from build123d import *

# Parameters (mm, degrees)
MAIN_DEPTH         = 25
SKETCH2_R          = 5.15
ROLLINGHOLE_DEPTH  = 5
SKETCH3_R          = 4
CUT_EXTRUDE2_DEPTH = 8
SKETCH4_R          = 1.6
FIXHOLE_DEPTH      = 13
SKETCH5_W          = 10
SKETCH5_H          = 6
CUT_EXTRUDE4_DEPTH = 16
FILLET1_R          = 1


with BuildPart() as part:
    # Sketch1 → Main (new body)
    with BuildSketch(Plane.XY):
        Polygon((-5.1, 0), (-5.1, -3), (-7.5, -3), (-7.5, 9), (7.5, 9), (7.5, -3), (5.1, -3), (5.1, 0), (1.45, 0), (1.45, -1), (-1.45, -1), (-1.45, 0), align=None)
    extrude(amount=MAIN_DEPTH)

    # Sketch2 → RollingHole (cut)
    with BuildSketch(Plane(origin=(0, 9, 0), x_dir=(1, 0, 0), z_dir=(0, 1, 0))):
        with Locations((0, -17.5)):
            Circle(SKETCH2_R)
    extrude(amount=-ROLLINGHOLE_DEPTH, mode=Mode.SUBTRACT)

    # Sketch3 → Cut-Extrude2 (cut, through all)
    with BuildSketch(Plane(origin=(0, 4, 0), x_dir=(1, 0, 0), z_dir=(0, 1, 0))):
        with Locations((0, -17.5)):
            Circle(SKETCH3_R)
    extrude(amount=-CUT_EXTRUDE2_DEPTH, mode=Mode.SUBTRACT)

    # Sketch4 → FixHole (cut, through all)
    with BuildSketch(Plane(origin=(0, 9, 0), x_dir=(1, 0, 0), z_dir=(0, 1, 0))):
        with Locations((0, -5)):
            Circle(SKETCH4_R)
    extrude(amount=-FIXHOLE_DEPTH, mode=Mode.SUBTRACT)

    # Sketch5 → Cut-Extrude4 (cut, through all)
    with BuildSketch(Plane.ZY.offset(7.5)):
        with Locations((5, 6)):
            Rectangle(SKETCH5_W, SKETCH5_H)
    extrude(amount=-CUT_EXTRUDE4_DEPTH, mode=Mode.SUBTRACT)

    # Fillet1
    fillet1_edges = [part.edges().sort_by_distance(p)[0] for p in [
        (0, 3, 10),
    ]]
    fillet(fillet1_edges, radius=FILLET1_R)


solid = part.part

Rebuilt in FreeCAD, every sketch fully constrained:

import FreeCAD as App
import Part
import Sketcher
Q = App.Units.Quantity


def edges_at(feature, points):
    """Names of the edges that pass closest to the given points."""
    edges = feature.Shape.Edges
    near = lambda p: min(range(len(edges)), key=lambda i: edges[i].distToShape(Part.Vertex(*p))[0])
    return sorted({f"Edge{near(p) + 1}" for p in points})

doc = App.newDocument("Part")
body = doc.addObject("PartDesign::Body", "Body")

sketch1 = body.newObject("Sketcher::SketchObject", "Sketch")
sketch1.AttachmentSupport = (doc.getObject("XY_Plane"), [""])
sketch1.MapMode = "FlatFace"
sketch1.addGeometry([
    Part.LineSegment(App.Vector(-5.1, -3, 0), App.Vector(-5.1, 0, 0)),
    Part.LineSegment(App.Vector(-5.1, 0, 0), App.Vector(-1.4, 0, 0)),
    Part.LineSegment(App.Vector(-1.4, 0, 0), App.Vector(-1.4, -1, 0)),
    Part.LineSegment(App.Vector(-1.4, -1, 0), App.Vector(1.4, -1, 0)),
    Part.LineSegment(App.Vector(1.4, -1, 0), App.Vector(1.4, 0, 0)),
    Part.LineSegment(App.Vector(1.4, 0, 0), App.Vector(5.1, 0, 0)),
    Part.LineSegment(App.Vector(5.1, 0, 0), App.Vector(5.1, -3, 0)),
    Part.LineSegment(App.Vector(5.1, -3, 0), App.Vector(7.5, -3, 0)),
    Part.LineSegment(App.Vector(7.5, -3, 0), App.Vector(7.5, 9, 0)),
    Part.LineSegment(App.Vector(7.5, 9, 0), App.Vector(-7.5, 9, 0)),
    Part.LineSegment(App.Vector(-7.5, 9, 0), App.Vector(-7.5, -3, 0)),
    Part.LineSegment(App.Vector(-7.5, -3, 0), App.Vector(-5.1, -3, 0)),
], False)
sketch1.addConstraint([
    Sketcher.Constraint("Coincident", 0, 2, 1, 1),
    Sketcher.Constraint("Coincident", 1, 2, 2, 1),
    Sketcher.Constraint("Coincident", 2, 2, 3, 1),
    Sketcher.Constraint("Coincident", 3, 2, 4, 1),
    Sketcher.Constraint("Coincident", 4, 2, 5, 1),
    Sketcher.Constraint("Coincident", 5, 2, 6, 1),
    Sketcher.Constraint("Coincident", 6, 2, 7, 1),
    Sketcher.Constraint("Coincident", 7, 2, 8, 1),
    Sketcher.Constraint("Coincident", 8, 2, 9, 1),
    Sketcher.Constraint("Coincident", 9, 2, 10, 1),
    Sketcher.Constraint("Coincident", 10, 2, 11, 1),
    Sketcher.Constraint("Coincident", 11, 2, 0, 1),
    Sketcher.Constraint("Vertical", 0),
    Sketcher.Constraint("Horizontal", 1),
    Sketcher.Constraint("Vertical", 2),
    Sketcher.Constraint("Horizontal", 3),
    Sketcher.Constraint("Vertical", 4),
    Sketcher.Constraint("Horizontal", 5),
    Sketcher.Constraint("Vertical", 6),
    Sketcher.Constraint("Horizontal", 7),
    Sketcher.Constraint("Vertical", 8),
    Sketcher.Constraint("Horizontal", 9),
    Sketcher.Constraint("Vertical", 10),
    Sketcher.Constraint("Horizontal", 11),
    Sketcher.Constraint("Symmetric", 1, 2, 4, 2, -1, 1),
    Sketcher.Constraint("Symmetric", 0, 2, 5, 2, -2),
    Sketcher.Constraint("Symmetric", 7, 2, 10, 2, -2),
    Sketcher.Constraint("DistanceX", 9, 2, 9, 1, Q("15 mm")),
    Sketcher.Constraint("DistanceY", 0, 1, 0, 2, Q("3 mm")),
    Sketcher.Constraint("DistanceY", 2, 2, 2, 1, Q("1 mm")),
    Sketcher.Constraint("DistanceY", 8, 1, 8, 2, Q("12 mm")),
    Sketcher.Constraint("DistanceX", 3, 1, 3, 2, Q("2.9 mm")),
    Sketcher.Constraint("DistanceX", 7, 1, 7, 2, Q("2.4 mm")),
])
pad1 = body.newObject("PartDesign::Pad", "Pad")
pad1.Profile = sketch1
pad1.Length = 25

sketch2 = body.newObject("Sketcher::SketchObject", "Sketch001")
sketch2.AttachmentSupport = (doc.getObject("XZ_Plane"), [""])
sketch2.MapMode = "FlatFace"
sketch2.AttachmentOffset = App.Placement(App.Vector(0, 0, -9), App.Rotation())
sketch2.addGeometry(Part.Circle(App.Vector(0, 18, 0), App.Vector(0, 0, 1), 5), False)
sketch2.addConstraint([
    Sketcher.Constraint("PointOnObject", 0, 3, -2),
    Sketcher.Constraint("Diameter", 0, Q("10.3 mm")),
    Sketcher.Constraint("DistanceY", -1, 1, 0, 3, Q("17.5 mm")),
])
pocket1 = body.newObject("PartDesign::Pocket", "Pocket")
pocket1.Profile = sketch2
pocket1.Length = 5
pocket1.Reversed = True

sketch3 = body.newObject("Sketcher::SketchObject", "Sketch002")
sketch3.AttachmentSupport = (doc.getObject("XZ_Plane"), [""])
sketch3.MapMode = "FlatFace"
sketch3.AttachmentOffset = App.Placement(App.Vector(0, 0, -4), App.Rotation())
sketch3.addGeometry(Part.Circle(App.Vector(0, 17.5, 0), App.Vector(0, 0, 1), 4), False)
sketch3.addConstraint([
    Sketcher.Constraint("PointOnObject", 0, 3, -2),
    Sketcher.Constraint("Diameter", 0, Q("8 mm")),
    Sketcher.Constraint("DistanceY", -1, 1, 0, 3, Q("17.5 mm")),
])
pocket2 = body.newObject("PartDesign::Pocket", "Pocket001")
pocket2.Profile = sketch3
pocket2.Type = "ThroughAll"
pocket2.Reversed = True

sketch4 = body.newObject("Sketcher::SketchObject", "Sketch003")
sketch4.AttachmentSupport = (doc.getObject("XZ_Plane"), [""])
sketch4.MapMode = "FlatFace"
sketch4.AttachmentOffset = App.Placement(App.Vector(0, 0, -9), App.Rotation())
sketch4.addGeometry(Part.Circle(App.Vector(0, 5, 0), App.Vector(0, 0, 1), 1.6), False)
sketch4.addConstraint([
    Sketcher.Constraint("PointOnObject", 0, 3, -2),
    Sketcher.Constraint("Diameter", 0, Q("3.2 mm")),
    Sketcher.Constraint("DistanceY", -1, 1, 0, 3, Q("5 mm")),
])
pocket3 = body.newObject("PartDesign::Pocket", "Pocket002")
pocket3.Profile = sketch4
pocket3.Type = "ThroughAll"
pocket3.Reversed = True

sketch5 = body.newObject("Sketcher::SketchObject", "Sketch004")
sketch5.AttachmentSupport = (doc.getObject("YZ_Plane"), [""])
sketch5.MapMode = "FlatFace"
sketch5.AttachmentOffset = App.Placement(App.Vector(0, 0, -7.5), App.Rotation())
sketch5.addGeometry([
    Part.LineSegment(App.Vector(9, 0, 0), App.Vector(3, 0, 0)),
    Part.LineSegment(App.Vector(3, 0, 0), App.Vector(3, 10, 0)),
    Part.LineSegment(App.Vector(3, 10, 0), App.Vector(9, 10, 0)),
    Part.LineSegment(App.Vector(9, 10, 0), App.Vector(9, 0, 0)),
], False)
sketch5.addConstraint([
    Sketcher.Constraint("Coincident", 0, 2, 1, 1),
    Sketcher.Constraint("Coincident", 1, 2, 2, 1),
    Sketcher.Constraint("Coincident", 2, 2, 3, 1),
    Sketcher.Constraint("Coincident", 3, 2, 0, 1),
    Sketcher.Constraint("Horizontal", 0),
    Sketcher.Constraint("Vertical", 1),
    Sketcher.Constraint("Horizontal", 2),
    Sketcher.Constraint("Vertical", 3),
    Sketcher.Constraint("PointOnObject", 0, 2, -1),
    Sketcher.Constraint("DistanceX", 0, 2, 0, 1, Q("6 mm")),
    Sketcher.Constraint("DistanceY", 1, 1, 1, 2, Q("10 mm")),
    Sketcher.Constraint("DistanceX", -1, 1, 0, 2, Q("3 mm")),
])
pocket4 = body.newObject("PartDesign::Pocket", "Pocket003")
pocket4.Profile = sketch5
pocket4.Type = "ThroughAll"
pocket4.Reversed = True
doc.recompute()

fillet = body.newObject("PartDesign::Fillet", "Fillet")
fillet.Base = (pocket4, edges_at(pocket4, [(0, 3, 10)]))
fillet.Radius = 1

doc.recompute()
